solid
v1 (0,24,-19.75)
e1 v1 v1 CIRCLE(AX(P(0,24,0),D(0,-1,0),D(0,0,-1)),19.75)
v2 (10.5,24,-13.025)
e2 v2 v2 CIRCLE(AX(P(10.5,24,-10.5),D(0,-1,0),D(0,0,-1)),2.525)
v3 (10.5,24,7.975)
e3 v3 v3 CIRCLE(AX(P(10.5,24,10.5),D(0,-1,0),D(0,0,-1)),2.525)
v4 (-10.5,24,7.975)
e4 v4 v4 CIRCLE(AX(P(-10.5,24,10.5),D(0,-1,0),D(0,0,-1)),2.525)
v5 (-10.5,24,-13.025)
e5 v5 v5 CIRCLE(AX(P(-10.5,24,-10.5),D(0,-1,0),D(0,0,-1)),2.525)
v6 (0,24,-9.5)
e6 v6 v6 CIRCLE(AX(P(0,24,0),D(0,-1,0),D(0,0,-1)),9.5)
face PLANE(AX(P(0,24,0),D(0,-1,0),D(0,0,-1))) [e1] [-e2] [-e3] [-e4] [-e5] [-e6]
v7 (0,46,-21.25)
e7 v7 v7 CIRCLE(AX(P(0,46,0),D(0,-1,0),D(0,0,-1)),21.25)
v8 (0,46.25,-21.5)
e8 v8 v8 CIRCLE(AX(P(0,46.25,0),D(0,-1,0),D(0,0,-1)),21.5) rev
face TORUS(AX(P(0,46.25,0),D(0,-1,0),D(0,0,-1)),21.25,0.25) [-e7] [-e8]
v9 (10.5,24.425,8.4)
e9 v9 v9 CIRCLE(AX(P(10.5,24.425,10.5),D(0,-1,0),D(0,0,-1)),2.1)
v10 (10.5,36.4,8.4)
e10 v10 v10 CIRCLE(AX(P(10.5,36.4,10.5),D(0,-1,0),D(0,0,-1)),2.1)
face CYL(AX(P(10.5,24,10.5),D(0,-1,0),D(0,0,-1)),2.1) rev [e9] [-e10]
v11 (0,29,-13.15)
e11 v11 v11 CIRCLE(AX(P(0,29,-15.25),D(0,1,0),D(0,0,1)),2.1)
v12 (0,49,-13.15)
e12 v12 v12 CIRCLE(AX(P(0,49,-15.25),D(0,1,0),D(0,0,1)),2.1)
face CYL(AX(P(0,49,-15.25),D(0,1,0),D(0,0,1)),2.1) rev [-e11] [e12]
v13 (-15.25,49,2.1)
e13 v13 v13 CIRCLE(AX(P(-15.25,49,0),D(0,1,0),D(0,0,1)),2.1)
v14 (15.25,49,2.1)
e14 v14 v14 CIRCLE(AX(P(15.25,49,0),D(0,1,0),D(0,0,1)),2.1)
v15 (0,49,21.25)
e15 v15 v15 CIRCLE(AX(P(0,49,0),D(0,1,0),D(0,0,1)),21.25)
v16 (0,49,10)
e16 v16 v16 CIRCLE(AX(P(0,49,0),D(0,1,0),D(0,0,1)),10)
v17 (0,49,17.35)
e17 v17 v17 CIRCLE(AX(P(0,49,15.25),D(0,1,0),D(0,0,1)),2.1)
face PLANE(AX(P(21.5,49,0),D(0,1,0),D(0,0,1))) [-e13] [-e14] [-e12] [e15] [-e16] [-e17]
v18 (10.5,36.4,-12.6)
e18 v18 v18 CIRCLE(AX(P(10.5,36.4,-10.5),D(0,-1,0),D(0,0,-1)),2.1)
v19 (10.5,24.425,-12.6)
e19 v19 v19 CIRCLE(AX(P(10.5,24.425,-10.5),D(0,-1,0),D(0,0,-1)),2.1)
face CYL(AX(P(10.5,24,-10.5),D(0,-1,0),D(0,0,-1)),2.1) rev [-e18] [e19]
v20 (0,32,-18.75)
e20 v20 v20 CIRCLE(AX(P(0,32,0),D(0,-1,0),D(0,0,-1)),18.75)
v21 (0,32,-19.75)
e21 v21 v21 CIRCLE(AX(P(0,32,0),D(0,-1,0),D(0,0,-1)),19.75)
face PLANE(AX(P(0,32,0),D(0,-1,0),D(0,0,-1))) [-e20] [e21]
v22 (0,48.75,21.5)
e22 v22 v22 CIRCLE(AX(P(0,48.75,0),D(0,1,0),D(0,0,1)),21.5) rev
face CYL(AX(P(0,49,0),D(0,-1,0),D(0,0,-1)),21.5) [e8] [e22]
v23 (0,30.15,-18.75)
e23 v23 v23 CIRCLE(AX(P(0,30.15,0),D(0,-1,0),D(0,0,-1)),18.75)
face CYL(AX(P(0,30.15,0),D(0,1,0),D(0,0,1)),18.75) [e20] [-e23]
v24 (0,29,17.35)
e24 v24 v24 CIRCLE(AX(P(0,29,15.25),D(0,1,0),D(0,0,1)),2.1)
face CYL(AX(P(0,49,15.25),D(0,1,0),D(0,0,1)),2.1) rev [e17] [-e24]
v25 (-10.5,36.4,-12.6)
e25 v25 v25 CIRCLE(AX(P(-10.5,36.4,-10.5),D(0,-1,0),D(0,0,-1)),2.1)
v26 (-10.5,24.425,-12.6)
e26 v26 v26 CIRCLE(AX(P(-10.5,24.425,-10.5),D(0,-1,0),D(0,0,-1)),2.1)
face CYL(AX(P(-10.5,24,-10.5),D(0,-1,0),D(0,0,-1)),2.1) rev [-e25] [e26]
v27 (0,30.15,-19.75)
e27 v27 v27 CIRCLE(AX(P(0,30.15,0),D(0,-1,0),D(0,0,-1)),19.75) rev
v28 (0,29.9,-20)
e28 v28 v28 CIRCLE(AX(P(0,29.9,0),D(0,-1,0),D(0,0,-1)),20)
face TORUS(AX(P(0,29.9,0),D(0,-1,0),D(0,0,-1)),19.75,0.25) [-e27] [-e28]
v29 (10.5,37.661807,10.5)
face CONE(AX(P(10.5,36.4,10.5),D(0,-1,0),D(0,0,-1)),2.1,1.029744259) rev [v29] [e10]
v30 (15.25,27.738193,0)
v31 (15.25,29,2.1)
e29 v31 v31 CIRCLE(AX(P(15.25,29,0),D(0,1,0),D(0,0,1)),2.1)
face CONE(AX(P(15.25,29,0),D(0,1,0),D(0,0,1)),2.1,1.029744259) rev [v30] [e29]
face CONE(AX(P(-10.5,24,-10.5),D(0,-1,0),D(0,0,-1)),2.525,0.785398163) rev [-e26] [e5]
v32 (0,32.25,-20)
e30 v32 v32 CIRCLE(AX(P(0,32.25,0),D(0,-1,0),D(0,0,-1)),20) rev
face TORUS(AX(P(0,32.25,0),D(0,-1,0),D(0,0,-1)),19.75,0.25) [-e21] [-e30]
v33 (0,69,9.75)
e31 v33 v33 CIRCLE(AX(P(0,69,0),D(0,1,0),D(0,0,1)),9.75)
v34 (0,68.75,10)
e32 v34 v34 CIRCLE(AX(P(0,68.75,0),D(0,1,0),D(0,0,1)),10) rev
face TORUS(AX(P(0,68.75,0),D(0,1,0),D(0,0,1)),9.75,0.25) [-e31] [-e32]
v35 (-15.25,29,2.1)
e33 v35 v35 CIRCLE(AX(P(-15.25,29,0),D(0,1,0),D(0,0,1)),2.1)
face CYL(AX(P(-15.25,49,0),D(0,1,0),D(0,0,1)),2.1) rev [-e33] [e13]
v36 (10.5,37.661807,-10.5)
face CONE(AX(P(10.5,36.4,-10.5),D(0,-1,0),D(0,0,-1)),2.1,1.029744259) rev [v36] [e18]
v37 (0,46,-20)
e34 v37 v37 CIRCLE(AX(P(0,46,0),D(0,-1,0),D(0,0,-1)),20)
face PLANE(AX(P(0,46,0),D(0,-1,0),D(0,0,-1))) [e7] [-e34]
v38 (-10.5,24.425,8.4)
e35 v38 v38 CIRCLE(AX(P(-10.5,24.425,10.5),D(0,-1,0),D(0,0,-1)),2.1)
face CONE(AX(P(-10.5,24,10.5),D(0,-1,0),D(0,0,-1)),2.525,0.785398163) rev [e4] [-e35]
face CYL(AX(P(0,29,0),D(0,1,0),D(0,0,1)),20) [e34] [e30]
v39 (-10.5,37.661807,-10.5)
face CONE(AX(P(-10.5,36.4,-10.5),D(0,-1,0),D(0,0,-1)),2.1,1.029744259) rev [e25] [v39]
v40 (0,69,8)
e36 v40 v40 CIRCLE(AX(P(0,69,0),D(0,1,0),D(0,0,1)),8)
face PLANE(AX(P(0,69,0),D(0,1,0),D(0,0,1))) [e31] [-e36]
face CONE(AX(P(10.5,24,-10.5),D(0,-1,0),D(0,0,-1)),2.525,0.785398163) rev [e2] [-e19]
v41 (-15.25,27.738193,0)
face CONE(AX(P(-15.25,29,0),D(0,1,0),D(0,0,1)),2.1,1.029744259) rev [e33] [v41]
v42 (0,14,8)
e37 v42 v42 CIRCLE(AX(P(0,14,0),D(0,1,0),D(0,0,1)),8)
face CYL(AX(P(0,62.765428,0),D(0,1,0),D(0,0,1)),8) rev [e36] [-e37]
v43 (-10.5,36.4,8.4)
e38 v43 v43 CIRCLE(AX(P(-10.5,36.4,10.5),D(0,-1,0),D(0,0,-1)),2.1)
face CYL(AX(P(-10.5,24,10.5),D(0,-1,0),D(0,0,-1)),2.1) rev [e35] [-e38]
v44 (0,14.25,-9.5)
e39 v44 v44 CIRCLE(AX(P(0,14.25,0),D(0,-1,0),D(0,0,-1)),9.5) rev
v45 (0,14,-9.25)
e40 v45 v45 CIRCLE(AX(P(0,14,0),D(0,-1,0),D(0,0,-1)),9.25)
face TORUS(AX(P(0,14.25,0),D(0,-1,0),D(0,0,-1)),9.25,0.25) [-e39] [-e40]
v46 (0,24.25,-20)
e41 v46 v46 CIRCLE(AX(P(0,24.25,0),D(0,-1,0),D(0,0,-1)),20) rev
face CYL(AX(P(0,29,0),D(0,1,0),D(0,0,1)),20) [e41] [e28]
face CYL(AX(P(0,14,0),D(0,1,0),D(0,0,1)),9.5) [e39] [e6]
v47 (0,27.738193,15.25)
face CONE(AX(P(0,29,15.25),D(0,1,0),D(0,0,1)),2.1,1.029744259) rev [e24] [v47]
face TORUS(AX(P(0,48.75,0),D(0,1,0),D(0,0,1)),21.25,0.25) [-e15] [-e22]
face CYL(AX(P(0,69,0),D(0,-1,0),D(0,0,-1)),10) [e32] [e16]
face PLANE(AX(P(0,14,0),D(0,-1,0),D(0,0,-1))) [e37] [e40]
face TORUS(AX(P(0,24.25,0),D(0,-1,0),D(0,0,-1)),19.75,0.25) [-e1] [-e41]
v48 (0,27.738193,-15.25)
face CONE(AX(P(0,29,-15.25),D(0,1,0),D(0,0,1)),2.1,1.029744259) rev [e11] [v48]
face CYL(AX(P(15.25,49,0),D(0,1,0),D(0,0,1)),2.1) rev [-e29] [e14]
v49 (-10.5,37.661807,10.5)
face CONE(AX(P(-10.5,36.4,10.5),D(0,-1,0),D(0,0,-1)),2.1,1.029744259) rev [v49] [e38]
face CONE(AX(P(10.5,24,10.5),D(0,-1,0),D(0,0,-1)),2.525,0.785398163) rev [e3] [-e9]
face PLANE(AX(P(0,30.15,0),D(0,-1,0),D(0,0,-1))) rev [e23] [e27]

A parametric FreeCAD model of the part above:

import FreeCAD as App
import Part
import Sketcher

V = App.Vector
Q = App.Units.Quantity


def edges_at(feature, points):
    """Names of the edges that pass closest to the given points."""
    edges = feature.Shape.Edges
    near = lambda p: min(range(len(edges)), key=lambda i: edges[i].distToShape(Part.Vertex(*p))[0])
    return sorted({f"Edge{near(p) + 1}" for p in points})


def add_polygon(sketch, points):
    """Adds a closed chain of lines whose ends are joined by coincident constraints."""
    first, n = sketch.GeometryCount, len(points)
    for a, b in zip(points, points[1:] + points[:1]):
        sketch.addGeometry(Part.LineSegment(App.Vector(*a, 0), App.Vector(*b, 0)), False)
    for i in range(n):
        sketch.addConstraint(Sketcher.Constraint("Coincident", first + i, 2, first + (i + 1) % n, 1))

doc = App.newDocument("Part")
body = doc.addObject("PartDesign::Body", "Body")

sketch1 = doc.addObject("Sketcher::SketchObject", "Sketch")
body.addObject(sketch1)
sketch1.AttachmentSupport = (doc.XY_Plane, [""])
sketch1.MapMode = "FlatFace"
add_polygon(sketch1, [(0, 49), (0, 46), (21.5, 46), (21.5, 49)])
sketch1.addConstraint([
    Sketcher.Constraint("Vertical", 0),
    Sketcher.Constraint("Horizontal", 1),
    Sketcher.Constraint("Vertical", 2),
    Sketcher.Constraint("Horizontal", 3),
    Sketcher.Constraint("PointOnObject", 0, 2, -2),
    Sketcher.Constraint("DistanceY", 0, 2, 0, 1, 3.0),
    Sketcher.Constraint("DistanceX", 1, 1, 1, 2, 21.5),
    Sketcher.Constraint("DistanceY", -1, 1, 0, 2, 46.0),
])
revolution = doc.addObject("PartDesign::Revolution", "Revolution")
body.addObject(revolution)
revolution.Profile = sketch1
revolution.ReferenceAxis = (sketch1, ["V_Axis"])
revolution.Angle = 360

sketch2 = doc.addObject("Sketcher::SketchObject", "Sketch001")
body.addObject(sketch2)
sketch2.AttachmentSupport = (doc.XZ_Plane, [""])
sketch2.MapMode = "FlatFace"
sketch2.AttachmentOffset = App.Placement(V(0, 0, -46), App.Rotation())
sketch2.addGeometry(Part.Circle(V(0, 0, 0), V(0, 0, 1), 20), False)
sketch2.addConstraint([
    Sketcher.Constraint("Coincident", 0, 3, -1, 1),
    Sketcher.Constraint("Diameter", 0, 40.0),
])
pad1 = doc.addObject("PartDesign::Pad", "Pad")
body.addObject(pad1)
pad1.Profile = sketch2
pad1.Length = 17

sketch3 = doc.addObject("Sketcher::SketchObject", "Sketch002")
body.addObject(sketch3)
sketch3.AttachmentSupport = (doc.XZ_Plane, [""])
sketch3.MapMode = "FlatFace"
sketch3.AttachmentOffset = App.Placement(V(0, 0, -29), App.Rotation())
sketch3.addGeometry(Part.Circle(V(0, 0, 0), V(0, 0, 1), 10), False)
sketch3.addConstraint([
    Sketcher.Constraint("Coincident", 0, 3, -1, 1),
    Sketcher.Constraint("Diameter", 0, 19.0),
])
pad2 = doc.addObject("PartDesign::Pad", "Pad001")
body.addObject(pad2)
pad2.Profile = sketch3
pad2.Length = 15

sketch4 = doc.addObject("Sketcher::SketchObject", "Sketch003")
body.addObject(sketch4)
sketch4.AttachmentSupport = (doc.XZ_Plane, [""])
sketch4.MapMode = "FlatFace"
sketch4.AttachmentOffset = App.Placement(V(0, 0, -49), App.Rotation())
sketch4.addGeometry(Part.Circle(V(0, 0, 0), V(0, 0, 1), 10), False)
sketch4.addConstraint([
    Sketcher.Constraint("Coincident", 0, 3, -1, 1),
    Sketcher.Constraint("Diameter", 0, 20.0),
])
pad3 = doc.addObject("PartDesign::Pad", "Pad002")
body.addObject(pad3)
pad3.Profile = sketch4
pad3.Length = 20
pad3.Reversed = True

sketch5 = doc.addObject("Sketcher::SketchObject", "Sketch004")
body.addObject(sketch5)
sketch5.AttachmentSupport = (doc.XZ_Plane, [""])
sketch5.MapMode = "FlatFace"
sketch5.AttachmentOffset = App.Placement(V(0, 0, -29), App.Rotation())
sketch5.addGeometry([
    Part.Circle(V(0, 0, 0), V(0, 0, 1), 20),
    Part.Circle(V(0, 0, 0), V(0, 0, 1), 10),
], False)
sketch5.addConstraint([
    Sketcher.Constraint("Coincident", 0, 3, -1, 1),
    Sketcher.Constraint("Coincident", 1, 3, -1, 1),
    Sketcher.Constraint("Diameter", 0, 40.0),
    Sketcher.Constraint("Diameter", 1, 19.0),
])
pad4 = doc.addObject("PartDesign::Pad", "Pad003")
body.addObject(pad4)
pad4.Profile = sketch5
pad4.Length = 5
doc.recompute()

fillet = doc.addObject("PartDesign::Fillet", "Fillet")
body.addObject(fillet)
fillet.Base = (pad4, edges_at(pad4, [
    (0, 69, -10),
    (0, 24, 20),
    (0, 46, 21.5),
    (0, 49, 21.5),
]))
fillet.Radius = 0.25

sketch6 = doc.addObject("Sketcher::SketchObject", "Sketch005")
body.addObject(sketch6)
sketch6.AttachmentSupport = (doc.XZ_Plane, [""])
sketch6.MapMode = "FlatFace"
sketch6.AttachmentOffset = App.Placement(V(0, 0, -32), App.Rotation())
sketch6.addGeometry([
    Part.Circle(V(0, 0, 0), V(0, 0, 1), 29),
    Part.Circle(V(0, 0, 0), V(0, 0, 1), 19),
], False)
sketch6.addConstraint([
    Sketcher.Constraint("Coincident", 0, 3, -1, 1),
    Sketcher.Constraint("Coincident", 1, 3, -1, 1),
    Sketcher.Constraint("Diameter", 1, 37.5),
    Sketcher.Constraint("Diameter", 0, 58.242969),
])
pocket1 = doc.addObject("PartDesign::Pocket", "Pocket")
body.addObject(pocket1)
pocket1.Profile = sketch6
pocket1.Length = 1.85
pocket1.Reversed = True
doc.recompute()

fillet2 = doc.addObject("PartDesign::Fillet", "Fillet001")
body.addObject(fillet2)
fillet2.Base = (pocket1, edges_at(pocket1, [(0, 14, 9.5), (0, 30.15, 20), (0, 32, 20)]))
fillet2.Radius = 0.25

sketch7 = doc.addObject("Sketcher::SketchObject", "Sketch006")
body.addObject(sketch7)
sketch7.AttachmentSupport = (doc.YZ_Plane, [""])
sketch7.MapMode = "FlatFace"
add_polygon(sketch7, [(37.7, 0), (24, 0), (24, -2.5), (24.4, -2.1), (36.4, -2.1)])
sketch7.addConstraint([
    Sketcher.Constraint("Horizontal", 0),
    Sketcher.Constraint("Vertical", 1),
    Sketcher.Constraint("Horizontal", 3),
    Sketcher.Constraint("PointOnObject", 0, 2, -1),
    Sketcher.Constraint("Angle", 2, Q("45 deg")),
    Sketcher.Constraint("Angle", 4, Q("59 deg")),
    Sketcher.Constraint("DistanceX", -1, 1, 0, 2, 24.0),
    Sketcher.Constraint("DistanceY", 2, 2, -1, 1, 2.1),
    Sketcher.Constraint("DistanceX", -1, 1, 3, 2, 36.4),
    Sketcher.Constraint("DistanceX", 3, 1, 3, 2, 11.975),
])
groove = doc.addObject("PartDesign::Groove", "Groove")
body.addObject(groove)
groove.Profile = sketch7
groove.ReferenceAxis = (sketch7, ["H_Axis"])
groove.Angle = 360
doc.recompute()

datumline = doc.addObject("PartDesign::Line", "DatumLine")
body.addObject(datumline)
datumline.Placement = App.Placement(V(0, 0, 0), App.Rotation(V(0, 0, 1), V(0.707106781, 0, 0.707106781)))
linearpattern = doc.addObject("PartDesign::LinearPattern", "LinearPattern")
body.addObject(linearpattern)
linearpattern.Originals = [groove]
linearpattern.Direction = (datumline, [""])
linearpattern.Mode = "offset"
linearpattern.Offset = 14.849242
linearpattern.Occurrences = 2
body.Tip = linearpattern
doc.recompute()

datumline2 = doc.addObject("PartDesign::Line", "DatumLine001")
body.addObject(datumline2)
datumline2.Placement = App.Placement(V(0, 0, 0), App.Rotation(V(0, 0, 1), V(-0.707106781, 0, -0.707106781)))
linearpattern2 = doc.addObject("PartDesign::LinearPattern", "LinearPattern001")
body.addObject(linearpattern2)
linearpattern2.Originals = [groove]
linearpattern2.Direction = (datumline2, [""])
linearpattern2.Mode = "offset"
linearpattern2.Offset = 14.849242
linearpattern2.Occurrences = 2
body.Tip = linearpattern2
doc.recompute()

datumline3 = doc.addObject("PartDesign::Line", "DatumLine002")
body.addObject(datumline3)
datumline3.Placement = App.Placement(V(0, 0, 0), App.Rotation(V(0, 0, 1), V(-0.707106781, 0, 0.707106781)))
linearpattern3 = doc.addObject("PartDesign::LinearPattern", "LinearPattern002")
body.addObject(linearpattern3)
linearpattern3.Originals = [groove]
linearpattern3.Direction = (datumline3, [""])
linearpattern3.Mode = "offset"
linearpattern3.Offset = 14.849242
linearpattern3.Occurrences = 2
body.Tip = linearpattern3
doc.recompute()

datumline4 = doc.addObject("PartDesign::Line", "DatumLine003")
body.addObject(datumline4)
datumline4.Placement = App.Placement(V(0, 0, 0), App.Rotation(V(0, 0, 1), V(0.707106781, 0, -0.707106781)))
linearpattern4 = doc.addObject("PartDesign::LinearPattern", "LinearPattern003")
body.addObject(linearpattern4)
linearpattern4.Originals = [groove]
linearpattern4.Direction = (datumline4, [""])
linearpattern4.Mode = "offset"
linearpattern4.Offset = 14.849242
linearpattern4.Occurrences = 2
body.Tip = linearpattern4

sketch8 = doc.addObject("Sketcher::SketchObject", "Sketch007")
body.addObject(sketch8)
sketch8.AttachmentSupport = (doc.XZ_Plane, [""])
sketch8.MapMode = "FlatFace"
sketch8.AttachmentOffset = App.Placement(V(0, 0, -49), App.Rotation())
sketch8.addGeometry([
    Part.Circle(V(-15.2, 0, 0), V(0, 0, 1), 2.1),
    Part.Circle(V(29.1, -17.1, 0), V(0, 0, 1), 2.1),
    Part.Circle(V(0, -15.2, 0), V(0, 0, 1), 2.1),
    Part.Circle(V(15.2, 0, 0), V(0, 0, 1), 2.1),
    Part.Circle(V(0, 15.2, 0), V(0, 0, 1), 2.1),
], False)
sketch8.addConstraint([
    Sketcher.Constraint("Equal", 0, 1),
    Sketcher.Constraint("Equal", 1, 2),
    Sketcher.Constraint("Equal", 2, 3),
    Sketcher.Constraint("Equal", 3, 4),
    Sketcher.Constraint("Symmetric", 0, 3, 3, 3, -1, 1),
    Sketcher.Constraint("Symmetric", 2, 3, 4, 3, -1, 1),
    Sketcher.Constraint("PointOnObject", 0, 3, -1),
    Sketcher.Constraint("PointOnObject", 2, 3, -2),
    Sketcher.Constraint("Diameter", 0, 4.2),
    Sketcher.Constraint("DistanceX", 0, 3, 3, 3, 30.5),
    Sketcher.Constraint("DistanceY", 2, 3, 4, 3, 30.5),
    Sketcher.Constraint("DistanceX", -1, 1, 1, 3, 29.073428),
    Sketcher.Constraint("DistanceY", 1, 3, -1, 1, 17.079917),
])
doc.recompute()
hole = doc.addObject("PartDesign::Hole", "Hole")
body.addObject(hole)
hole.Profile = sketch8
hole.ThreadType = "None"
hole.Diameter = 4.2
hole.DepthType = "Dimension"
hole.Depth = 20
hole.DrillPoint = "Angled"
hole.DrillPointAngle = 118
hole.Reversed = True

sketch9 = doc.addObject("Sketcher::SketchObject", "Sketch008")
body.addObject(sketch9)
sketch9.AttachmentSupport = (doc.XY_Plane, [""])
sketch9.MapMode = "FlatFace"
add_polygon(sketch9, [(8, 39), (8, 69), (0, 69), (0, 14), (7, 14), (7, 39)])
sketch9.addConstraint([
    Sketcher.Constraint("Vertical", 0),
    Sketcher.Constraint("Horizontal", 1),
    Sketcher.Constraint("Vertical", 2),
    Sketcher.Constraint("Horizontal", 3),
    Sketcher.Constraint("Vertical", 4),
    Sketcher.Constraint("Horizontal", 5),
    Sketcher.Constraint("PointOnObject", 1, 2, -2),
    Sketcher.Constraint("DistanceX", 1, 2, 1, 1, 8.0),
    Sketcher.Constraint("DistanceX", 3, 1, 3, 2, 7.0),
    Sketcher.Constraint("DistanceY", 0, 1, 0, 2, 30.0),
    Sketcher.Constraint("DistanceY", 2, 2, 2, 1, 55.0),
    Sketcher.Constraint("DistanceY", -1, 1, 0, 2, 69.0),
])
groove2 = doc.addObject("PartDesign::Groove", "Groove001")
body.addObject(groove2)
groove2.Profile = sketch9
groove2.ReferenceAxis = (sketch9, ["V_Axis"])
groove2.Angle = 360

sketch10 = doc.addObject("Sketcher::SketchObject", "Sketch009")
body.addObject(sketch10)
sketch10.AttachmentSupport = (doc.XZ_Plane, [""])
sketch10.MapMode = "FlatFace"
sketch10.AttachmentOffset = App.Placement(V(0, 0, -69), App.Rotation())
sketch10.addGeometry(Part.Circle(V(0, 0, 0), V(0, 0, 1), 8), False)
sketch10.addConstraint([
    Sketcher.Constraint("Coincident", 0, 3, -1, 1),
    Sketcher.Constraint("Diameter", 0, 16.0),
])
pocket2 = doc.addObject("PartDesign::Pocket", "Pocket001")
body.addObject(pocket2)
pocket2.Profile = sketch10
pocket2.Type = "ThroughAll"
pocket2.Midplane = True

doc.recompute()
